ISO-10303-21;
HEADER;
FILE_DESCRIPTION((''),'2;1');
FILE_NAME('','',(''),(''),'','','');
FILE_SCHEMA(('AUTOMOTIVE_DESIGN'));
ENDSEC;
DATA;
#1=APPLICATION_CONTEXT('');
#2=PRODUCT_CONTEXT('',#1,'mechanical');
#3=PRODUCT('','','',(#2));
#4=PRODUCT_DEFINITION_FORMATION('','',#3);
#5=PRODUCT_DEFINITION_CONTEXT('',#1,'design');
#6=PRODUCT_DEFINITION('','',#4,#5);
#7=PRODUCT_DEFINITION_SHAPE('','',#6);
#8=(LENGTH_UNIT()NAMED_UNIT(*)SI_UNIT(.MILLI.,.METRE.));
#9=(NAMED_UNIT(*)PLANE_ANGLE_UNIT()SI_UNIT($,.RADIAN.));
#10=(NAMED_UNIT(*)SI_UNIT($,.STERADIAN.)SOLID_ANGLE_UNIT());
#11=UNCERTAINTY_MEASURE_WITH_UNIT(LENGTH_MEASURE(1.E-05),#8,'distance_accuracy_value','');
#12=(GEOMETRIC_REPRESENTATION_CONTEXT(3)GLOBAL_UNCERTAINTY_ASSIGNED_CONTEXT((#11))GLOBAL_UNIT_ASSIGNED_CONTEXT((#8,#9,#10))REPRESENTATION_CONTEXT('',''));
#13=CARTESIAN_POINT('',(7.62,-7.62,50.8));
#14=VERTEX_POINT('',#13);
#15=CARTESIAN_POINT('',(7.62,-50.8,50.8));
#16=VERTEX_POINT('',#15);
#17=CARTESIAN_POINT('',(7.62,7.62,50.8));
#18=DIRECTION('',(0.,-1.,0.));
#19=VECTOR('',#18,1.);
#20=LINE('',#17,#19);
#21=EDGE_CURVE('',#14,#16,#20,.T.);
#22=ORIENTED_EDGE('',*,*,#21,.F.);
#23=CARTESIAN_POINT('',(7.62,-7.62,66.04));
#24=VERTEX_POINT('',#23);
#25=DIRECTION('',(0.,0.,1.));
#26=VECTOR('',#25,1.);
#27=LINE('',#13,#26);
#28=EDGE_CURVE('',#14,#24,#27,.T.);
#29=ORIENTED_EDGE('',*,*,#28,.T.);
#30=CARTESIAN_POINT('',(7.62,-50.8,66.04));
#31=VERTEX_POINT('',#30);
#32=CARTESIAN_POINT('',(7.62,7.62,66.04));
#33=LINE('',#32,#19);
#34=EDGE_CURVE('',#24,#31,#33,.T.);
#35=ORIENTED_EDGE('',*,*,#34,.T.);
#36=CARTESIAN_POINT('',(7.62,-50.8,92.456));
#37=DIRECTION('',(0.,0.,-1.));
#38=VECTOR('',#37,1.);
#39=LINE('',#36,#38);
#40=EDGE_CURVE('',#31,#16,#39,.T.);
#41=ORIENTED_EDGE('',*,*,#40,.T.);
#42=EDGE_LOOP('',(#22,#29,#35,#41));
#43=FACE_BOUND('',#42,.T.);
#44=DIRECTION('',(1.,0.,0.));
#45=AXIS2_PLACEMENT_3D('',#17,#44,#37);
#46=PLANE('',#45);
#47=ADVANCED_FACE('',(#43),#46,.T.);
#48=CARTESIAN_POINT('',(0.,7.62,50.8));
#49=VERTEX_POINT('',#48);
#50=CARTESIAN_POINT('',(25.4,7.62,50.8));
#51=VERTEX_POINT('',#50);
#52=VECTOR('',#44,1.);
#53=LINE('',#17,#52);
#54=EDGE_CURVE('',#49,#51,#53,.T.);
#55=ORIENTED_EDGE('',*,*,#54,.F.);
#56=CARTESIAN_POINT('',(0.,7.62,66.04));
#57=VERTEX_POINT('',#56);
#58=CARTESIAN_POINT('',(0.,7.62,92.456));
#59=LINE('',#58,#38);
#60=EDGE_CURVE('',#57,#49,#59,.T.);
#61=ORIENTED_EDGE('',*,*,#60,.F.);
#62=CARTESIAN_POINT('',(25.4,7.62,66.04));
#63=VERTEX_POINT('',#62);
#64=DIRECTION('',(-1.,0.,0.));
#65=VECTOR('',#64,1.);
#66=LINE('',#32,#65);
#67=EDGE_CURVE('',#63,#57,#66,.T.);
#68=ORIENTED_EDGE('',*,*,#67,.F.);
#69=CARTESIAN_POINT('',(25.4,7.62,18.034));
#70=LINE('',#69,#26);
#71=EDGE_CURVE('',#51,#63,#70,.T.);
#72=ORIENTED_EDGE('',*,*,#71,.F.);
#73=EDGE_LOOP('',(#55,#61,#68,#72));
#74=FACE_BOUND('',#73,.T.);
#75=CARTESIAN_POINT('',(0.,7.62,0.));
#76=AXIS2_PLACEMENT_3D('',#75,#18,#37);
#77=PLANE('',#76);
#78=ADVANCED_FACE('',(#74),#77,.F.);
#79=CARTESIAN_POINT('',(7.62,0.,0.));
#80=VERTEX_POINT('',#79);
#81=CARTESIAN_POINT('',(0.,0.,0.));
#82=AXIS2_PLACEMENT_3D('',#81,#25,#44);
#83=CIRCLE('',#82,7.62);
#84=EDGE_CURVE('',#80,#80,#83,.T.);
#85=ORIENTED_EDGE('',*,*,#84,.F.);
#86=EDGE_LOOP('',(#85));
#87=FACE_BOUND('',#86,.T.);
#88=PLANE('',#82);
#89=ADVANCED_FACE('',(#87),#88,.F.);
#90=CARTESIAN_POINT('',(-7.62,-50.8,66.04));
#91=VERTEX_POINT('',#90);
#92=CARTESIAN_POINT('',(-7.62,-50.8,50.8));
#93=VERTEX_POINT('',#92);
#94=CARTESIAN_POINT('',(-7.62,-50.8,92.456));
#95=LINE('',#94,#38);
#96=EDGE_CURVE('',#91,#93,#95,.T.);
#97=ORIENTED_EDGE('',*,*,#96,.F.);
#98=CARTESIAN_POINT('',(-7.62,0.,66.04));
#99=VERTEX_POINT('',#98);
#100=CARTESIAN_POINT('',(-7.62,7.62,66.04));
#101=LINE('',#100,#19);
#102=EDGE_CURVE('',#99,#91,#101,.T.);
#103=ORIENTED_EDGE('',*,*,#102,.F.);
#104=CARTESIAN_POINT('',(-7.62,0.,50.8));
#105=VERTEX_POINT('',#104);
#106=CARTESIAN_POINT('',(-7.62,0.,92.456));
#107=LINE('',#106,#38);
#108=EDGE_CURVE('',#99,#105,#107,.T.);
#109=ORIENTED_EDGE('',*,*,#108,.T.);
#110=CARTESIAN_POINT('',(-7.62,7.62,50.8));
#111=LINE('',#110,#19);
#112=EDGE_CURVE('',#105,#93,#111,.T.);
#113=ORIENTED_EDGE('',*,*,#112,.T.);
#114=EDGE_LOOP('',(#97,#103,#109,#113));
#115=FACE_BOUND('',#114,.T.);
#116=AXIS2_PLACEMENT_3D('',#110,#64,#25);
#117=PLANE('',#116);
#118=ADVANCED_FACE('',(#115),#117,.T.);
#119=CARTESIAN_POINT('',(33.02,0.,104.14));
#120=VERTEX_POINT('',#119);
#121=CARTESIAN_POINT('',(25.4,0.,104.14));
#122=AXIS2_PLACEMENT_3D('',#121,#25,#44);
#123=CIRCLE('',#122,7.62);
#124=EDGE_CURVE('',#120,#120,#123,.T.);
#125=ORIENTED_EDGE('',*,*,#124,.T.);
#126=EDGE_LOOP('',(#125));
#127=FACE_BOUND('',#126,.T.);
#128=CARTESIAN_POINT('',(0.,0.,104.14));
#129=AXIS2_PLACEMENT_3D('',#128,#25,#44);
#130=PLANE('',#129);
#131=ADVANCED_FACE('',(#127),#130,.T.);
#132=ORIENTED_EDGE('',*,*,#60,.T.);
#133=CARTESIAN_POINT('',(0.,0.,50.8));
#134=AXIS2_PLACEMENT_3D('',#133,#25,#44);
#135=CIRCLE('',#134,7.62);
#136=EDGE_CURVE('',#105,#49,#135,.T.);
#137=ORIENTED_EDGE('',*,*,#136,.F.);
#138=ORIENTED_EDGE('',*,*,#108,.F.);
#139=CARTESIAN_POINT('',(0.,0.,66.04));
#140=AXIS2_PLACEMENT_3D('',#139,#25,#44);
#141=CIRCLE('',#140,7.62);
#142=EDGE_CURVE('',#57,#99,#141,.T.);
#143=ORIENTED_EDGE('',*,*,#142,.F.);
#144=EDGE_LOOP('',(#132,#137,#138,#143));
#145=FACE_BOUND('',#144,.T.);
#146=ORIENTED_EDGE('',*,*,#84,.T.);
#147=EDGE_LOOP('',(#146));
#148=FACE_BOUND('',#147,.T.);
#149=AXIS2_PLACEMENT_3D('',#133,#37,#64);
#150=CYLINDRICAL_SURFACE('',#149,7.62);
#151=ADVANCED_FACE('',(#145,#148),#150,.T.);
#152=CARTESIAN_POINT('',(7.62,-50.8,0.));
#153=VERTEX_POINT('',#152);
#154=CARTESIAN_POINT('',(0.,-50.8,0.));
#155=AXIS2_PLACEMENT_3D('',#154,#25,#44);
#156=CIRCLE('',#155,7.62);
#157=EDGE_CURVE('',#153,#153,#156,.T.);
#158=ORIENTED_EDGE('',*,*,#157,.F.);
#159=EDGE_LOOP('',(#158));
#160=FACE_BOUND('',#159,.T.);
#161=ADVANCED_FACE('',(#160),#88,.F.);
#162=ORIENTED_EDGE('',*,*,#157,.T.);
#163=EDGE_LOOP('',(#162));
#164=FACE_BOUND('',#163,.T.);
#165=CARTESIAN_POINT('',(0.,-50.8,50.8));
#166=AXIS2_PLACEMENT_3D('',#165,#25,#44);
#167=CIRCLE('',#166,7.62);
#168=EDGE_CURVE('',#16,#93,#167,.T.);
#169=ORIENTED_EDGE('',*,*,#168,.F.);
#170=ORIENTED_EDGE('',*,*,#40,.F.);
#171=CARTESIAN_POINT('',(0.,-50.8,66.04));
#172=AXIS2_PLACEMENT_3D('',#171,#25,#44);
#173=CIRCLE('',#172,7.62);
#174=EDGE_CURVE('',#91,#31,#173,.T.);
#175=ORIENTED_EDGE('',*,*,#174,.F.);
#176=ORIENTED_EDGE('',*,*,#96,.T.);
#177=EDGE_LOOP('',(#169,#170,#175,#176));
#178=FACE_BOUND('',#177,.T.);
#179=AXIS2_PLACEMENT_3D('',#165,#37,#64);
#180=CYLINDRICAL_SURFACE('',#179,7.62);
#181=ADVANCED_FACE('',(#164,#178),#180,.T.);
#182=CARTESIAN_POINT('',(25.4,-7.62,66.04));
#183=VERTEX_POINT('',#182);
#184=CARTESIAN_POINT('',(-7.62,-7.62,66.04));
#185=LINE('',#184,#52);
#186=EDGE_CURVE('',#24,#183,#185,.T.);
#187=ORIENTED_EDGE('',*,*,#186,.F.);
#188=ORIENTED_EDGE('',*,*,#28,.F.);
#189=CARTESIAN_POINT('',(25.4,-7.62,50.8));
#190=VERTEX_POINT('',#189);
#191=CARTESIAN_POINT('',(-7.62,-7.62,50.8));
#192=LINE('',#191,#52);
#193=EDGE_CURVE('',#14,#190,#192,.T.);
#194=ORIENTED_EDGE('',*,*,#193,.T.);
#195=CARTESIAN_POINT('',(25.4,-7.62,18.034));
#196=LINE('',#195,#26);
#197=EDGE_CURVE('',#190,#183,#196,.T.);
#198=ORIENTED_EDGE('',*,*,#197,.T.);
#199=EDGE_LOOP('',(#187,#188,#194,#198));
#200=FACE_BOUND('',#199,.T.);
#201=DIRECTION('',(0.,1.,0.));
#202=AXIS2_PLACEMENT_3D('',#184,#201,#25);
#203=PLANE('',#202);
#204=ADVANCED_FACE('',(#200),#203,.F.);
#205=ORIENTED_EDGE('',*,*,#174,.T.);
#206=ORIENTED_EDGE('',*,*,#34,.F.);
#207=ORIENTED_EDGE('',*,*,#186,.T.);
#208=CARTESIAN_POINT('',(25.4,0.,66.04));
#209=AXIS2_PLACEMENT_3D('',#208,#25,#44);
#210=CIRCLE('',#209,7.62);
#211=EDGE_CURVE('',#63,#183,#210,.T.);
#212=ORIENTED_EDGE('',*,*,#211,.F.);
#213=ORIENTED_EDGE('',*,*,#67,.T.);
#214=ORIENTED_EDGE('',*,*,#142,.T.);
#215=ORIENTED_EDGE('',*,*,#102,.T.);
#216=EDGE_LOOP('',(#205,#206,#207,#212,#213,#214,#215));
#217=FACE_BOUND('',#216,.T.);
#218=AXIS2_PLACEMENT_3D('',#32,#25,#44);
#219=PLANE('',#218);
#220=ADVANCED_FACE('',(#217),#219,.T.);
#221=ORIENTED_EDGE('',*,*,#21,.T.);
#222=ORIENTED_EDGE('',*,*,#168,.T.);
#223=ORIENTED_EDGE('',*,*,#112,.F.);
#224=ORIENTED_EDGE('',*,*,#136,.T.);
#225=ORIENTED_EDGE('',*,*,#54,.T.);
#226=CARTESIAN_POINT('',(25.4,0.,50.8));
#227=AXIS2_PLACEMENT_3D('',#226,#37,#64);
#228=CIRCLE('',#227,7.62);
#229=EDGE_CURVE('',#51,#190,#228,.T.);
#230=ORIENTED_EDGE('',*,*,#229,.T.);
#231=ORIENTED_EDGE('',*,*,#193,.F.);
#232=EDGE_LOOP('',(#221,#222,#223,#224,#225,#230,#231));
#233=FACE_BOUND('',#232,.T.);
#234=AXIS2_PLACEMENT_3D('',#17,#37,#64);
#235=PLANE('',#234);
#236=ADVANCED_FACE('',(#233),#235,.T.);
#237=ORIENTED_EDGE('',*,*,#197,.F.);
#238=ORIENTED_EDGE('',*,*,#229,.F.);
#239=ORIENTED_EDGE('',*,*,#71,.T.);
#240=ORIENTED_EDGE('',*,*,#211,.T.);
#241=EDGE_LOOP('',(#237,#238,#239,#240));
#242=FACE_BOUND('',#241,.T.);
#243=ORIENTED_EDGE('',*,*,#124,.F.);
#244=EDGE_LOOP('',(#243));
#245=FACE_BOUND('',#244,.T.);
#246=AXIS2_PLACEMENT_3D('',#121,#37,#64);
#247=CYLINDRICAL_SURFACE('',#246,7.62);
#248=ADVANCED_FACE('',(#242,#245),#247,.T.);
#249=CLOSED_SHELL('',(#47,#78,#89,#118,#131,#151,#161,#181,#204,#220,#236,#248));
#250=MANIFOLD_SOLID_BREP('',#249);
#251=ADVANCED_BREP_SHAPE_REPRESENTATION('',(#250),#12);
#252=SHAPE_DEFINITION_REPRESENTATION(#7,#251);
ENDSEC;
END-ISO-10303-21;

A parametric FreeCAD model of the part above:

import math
import FreeCAD as App
import Part
import Sketcher

V = App.Vector
Q = App.Units.Quantity

doc = App.newDocument("Part")
body = doc.addObject("PartDesign::Body", "Body")

sketch1 = doc.addObject("Sketcher::SketchObject", "Sketch")
body.addObject(sketch1)
sketch1.AttachmentSupport = (doc.XY_Plane, [""])
sketch1.MapMode = "FlatFace"
sketch1.addGeometry(Part.Circle(V(0, 0, 0), V(0, 0, 1), 7.62), False)
sketch1.addConstraint(Sketcher.Constraint("Coincident", 0, 3, -1, 1))
sketch1.addConstraint(Sketcher.Constraint("Diameter", 0, Q("0.6 in")))
pad1 = doc.addObject("PartDesign::Pad", "Pad")
body.addObject(pad1)
pad1.Profile = sketch1
pad1.Length = Q("2 in")

sketch2 = doc.addObject("Sketcher::SketchObject", "Sketch001")
body.addObject(sketch2)
sketch2.AttachmentSupport = (doc.XY_Plane, [""])
sketch2.MapMode = "FlatFace"
sketch2.AttachmentOffset = App.Placement(V(0, 0, 2 * 25.4), App.Rotation())
sketch2.addGeometry(Part.LineSegment(V(-7.62, 7.62, 0), V(-7.62, -7.62, 0)), False)
sketch2.addGeometry(Part.LineSegment(V(-7.62, -7.62, 0), V(7.62, -7.62, 0)), False)
sketch2.addGeometry(Part.LineSegment(V(7.62, -7.62, 0), V(7.62, 7.62, 0)), False)
sketch2.addGeometry(Part.LineSegment(V(7.62, 7.62, 0), V(-7.62, 7.62, 0)), False)
sketch2.addConstraint(Sketcher.Constraint("Coincident", 0, 2, 1, 1))
sketch2.addConstraint(Sketcher.Constraint("Coincident", 1, 2, 2, 1))
sketch2.addConstraint(Sketcher.Constraint("Coincident", 2, 2, 3, 1))
sketch2.addConstraint(Sketcher.Constraint("Coincident", 3, 2, 0, 1))
sketch2.addConstraint(Sketcher.Constraint("Vertical", 0))
sketch2.addConstraint(Sketcher.Constraint("Horizontal", 1))
sketch2.addConstraint(Sketcher.Constraint("Vertical", 2))
sketch2.addConstraint(Sketcher.Constraint("Horizontal", 3))
sketch2.addConstraint(Sketcher.Constraint("Symmetric", 0, 2, 2, 2, -1, 1))
sketch2.addConstraint(Sketcher.Constraint("Equal", 3, 0))
sketch2.addConstraint(Sketcher.Constraint("DistanceX", 1, 1, 1, 2, Q("0.6 in")))
pad2 = doc.addObject("PartDesign::Pad", "Pad001")
body.addObject(pad2)
pad2.Profile = sketch2
pad2.Length = Q("0.6 in")

sketch3 = doc.addObject("Sketcher::SketchObject", "Sketch002")
body.addObject(sketch3)
sketch3.AttachmentSupport = (doc.YZ_Plane, [""])
sketch3.MapMode = "FlatFace"
sketch3.AttachmentOffset = App.Placement(V(0, 0, 0.3 * 25.4), App.Rotation())
sketch3.addGeometry(Part.LineSegment(V(7.62, 66.04, 0), V(-7.62, 66.04, 0)), False)
sketch3.addGeometry(Part.LineSegment(V(-7.62, 66.04, 0), V(-7.62, 50.8, 0)), False)
sketch3.addGeometry(Part.LineSegment(V(-7.62, 50.8, 0), V(7.62, 50.8, 0)), False)
sketch3.addGeometry(Part.LineSegment(V(7.62, 50.8, 0), V(7.62, 66.04, 0)), False)
sketch3.addConstraint(Sketcher.Constraint("Coincident", 0, 2, 1, 1))
sketch3.addConstraint(Sketcher.Constraint("Coincident", 1, 2, 2, 1))
sketch3.addConstraint(Sketcher.Constraint("Coincident", 2, 2, 3, 1))
sketch3.addConstraint(Sketcher.Constraint("Coincident", 3, 2, 0, 1))
sketch3.addConstraint(Sketcher.Constraint("Horizontal", 0))
sketch3.addConstraint(Sketcher.Constraint("Vertical", 1))
sketch3.addConstraint(Sketcher.Constraint("Horizontal", 2))
sketch3.addConstraint(Sketcher.Constraint("Vertical", 3))
sketch3.addConstraint(Sketcher.Constraint("Equal", 2, 1))
sketch3.addConstraint(Sketcher.Constraint("DistanceX", 0, 2, 0, 1, Q("0.6 in")))
sketch3.addConstraint(Sketcher.Constraint("DistanceY", -1, 1, 1, 2, Q("2 in")))
sketch3.addConstraint(Sketcher.Constraint("DistanceX", 0, 2, -1, 1, Q("0.3 in")))
pad3 = doc.addObject("PartDesign::Pad", "Pad002")
body.addObject(pad3)
pad3.Profile = sketch3
pad3.Length = Q("1 in")

sketch4 = doc.addObject("Sketcher::SketchObject", "Sketch003")
body.addObject(sketch4)
sketch4.AttachmentSupport = (doc.XY_Plane, [""])
sketch4.MapMode = "FlatFace"
sketch4.AttachmentOffset = App.Placement(V(0, 0, 2.6 * 25.4), App.Rotation())
sketch4.addGeometry(Part.Circle(V(25.4, 0, 0), V(0, 0, 1), 7.62), False)
sketch4.addConstraint(Sketcher.Constraint("PointOnObject", 0, 3, -1))
sketch4.addConstraint(Sketcher.Constraint("Diameter", 0, Q("0.6 in")))
sketch4.addConstraint(Sketcher.Constraint("DistanceX", -1, 1, 0, 3, Q("1 in")))
pad4 = doc.addObject("PartDesign::Pad", "Pad003")
body.addObject(pad4)
pad4.Profile = sketch4
pad4.Length = Q("1.5 in")

sketch5 = doc.addObject("Sketcher::SketchObject", "Sketch004")
body.addObject(sketch5)
sketch5.AttachmentSupport = (doc.XY_Plane, [""])
sketch5.MapMode = "FlatFace"
sketch5.addGeometry(Part.LineSegment(V(-7.62, 0, 0), V(-7.62, 7.62, 0)), False)
sketch5.addGeometry(Part.LineSegment(V(-7.62, 7.62, 0), V(0, 7.62, 0)), False)
sketch5.addGeometry(Part.ArcOfCircle(Part.Circle(V(0, 0, 0), V(0, 0, 1), 7.62), math.radians(90), math.radians(180)), False)
sketch5.addGeometry(Part.LineSegment(V(-7.62, -7.62, 0), V(-7.62, 0, 0)), False)
sketch5.addGeometry(Part.ArcOfCircle(Part.Circle(V(0, 0, 0), V(0, 0, 1), 7.62), math.radians(180), math.radians(270)), False)
sketch5.addGeometry(Part.LineSegment(V(0, -7.62, 0), V(-7.62, -7.62, 0)), False)
sketch5.addConstraint(Sketcher.Constraint("Coincident", 0, 2, 1, 1))
sketch5.addConstraint(Sketcher.Constraint("Tangent", 1, 2, 2, 1))
sketch5.addConstraint(Sketcher.Constraint("Tangent", 2, 2, 0, 1))
sketch5.addConstraint(Sketcher.Constraint("Tangent", 3, 2, 4, 1))
sketch5.addConstraint(Sketcher.Constraint("Tangent", 4, 2, 5, 1))
sketch5.addConstraint(Sketcher.Constraint("Coincident", 5, 2, 3, 1))
sketch5.addConstraint(Sketcher.Constraint("Vertical", 0))
sketch5.addConstraint(Sketcher.Constraint("Horizontal", 1))
sketch5.addConstraint(Sketcher.Constraint("Vertical", 3))
sketch5.addConstraint(Sketcher.Constraint("Horizontal", 5))
sketch5.addConstraint(Sketcher.Constraint("Coincident", 2, 3, -1, 1))
sketch5.addConstraint(Sketcher.Constraint("Coincident", 4, 3, -1, 1))
sketch5.addConstraint(Sketcher.Constraint("Equal", 2, 4))
sketch5.addConstraint(Sketcher.Constraint("Radius", 2, Q("0.3 in")))
pocket1 = doc.addObject("PartDesign::Pocket", "Pocket")
body.addObject(pocket1)
pocket1.Profile = sketch5
pocket1.Length = Q("3.39 in")
pocket1.Reversed = True

sketch6 = doc.addObject("Sketcher::SketchObject", "Sketch005")
body.addObject(sketch6)
sketch6.AttachmentSupport = (doc.XY_Plane, [""])
sketch6.MapMode = "FlatFace"
sketch6.AttachmentOffset = App.Placement(V(0, 0, 0.71 * 25.4), App.Rotation())
sketch6.addGeometry(Part.LineSegment(V(33.02, 0, 0), V(33.02, 7.62, 0)), False)
sketch6.addGeometry(Part.LineSegment(V(33.02, 7.62, 0), V(25.4, 7.62, 0)), False)
sketch6.addGeometry(Part.ArcOfCircle(Part.Circle(V(25.4, 0, 0), V(0, 0, 1), 7.62), math.radians(0), math.radians(90)), False)
sketch6.addGeometry(Part.LineSegment(V(33.02, -7.62, 0), V(33.02, 0, 0)), False)
sketch6.addGeometry(Part.ArcOfCircle(Part.Circle(V(25.4, 0, 0), V(0, 0, 1), 7.62), math.radians(-90), math.radians(0)), False)
sketch6.addGeometry(Part.LineSegment(V(25.4, -7.62, 0), V(33.02, -7.62, 0)), False)
sketch6.addConstraint(Sketcher.Constraint("Coincident", 0, 2, 1, 1))
sketch6.addConstraint(Sketcher.Constraint("Tangent", 1, 2, 2, 2))
sketch6.addConstraint(Sketcher.Constraint("Tangent", 2, 1, 0, 1))
sketch6.addConstraint(Sketcher.Constraint("Tangent", 3, 2, 4, 2))
sketch6.addConstraint(Sketcher.Constraint("Tangent", 4, 1, 5, 1))
sketch6.addConstraint(Sketcher.Constraint("Coincident", 5, 2, 3, 1))
sketch6.addConstraint(Sketcher.Constraint("Vertical", 0))
sketch6.addConstraint(Sketcher.Constraint("Horizontal", 1))
sketch6.addConstraint(Sketcher.Constraint("Vertical", 3))
sketch6.addConstraint(Sketcher.Constraint("Horizontal", 5))
sketch6.addConstraint(Sketcher.Constraint("Coincident", 4, 3, 2, 3))
sketch6.addConstraint(Sketcher.Constraint("Equal", 2, 4))
sketch6.addConstraint(Sketcher.Constraint("PointOnObject", 2, 3, -1))
sketch6.addConstraint(Sketcher.Constraint("Radius", 2, Q("0.3 in")))
sketch6.addConstraint(Sketcher.Constraint("DistanceX", -1, 1, 2, 3, Q("1 in")))
pocket2 = doc.addObject("PartDesign::Pocket", "Pocket001")
body.addObject(pocket2)
pocket2.Profile = sketch6
pocket2.Length = Q("3.39 in")
pocket2.Reversed = True
body2 = doc.addObject("PartDesign::Body", "Body001")

sketch7 = doc.addObject("Sketcher::SketchObject", "Sketch006")
body2.addObject(sketch7)
sketch7.AttachmentSupport = (doc.getObject("XY_Plane001"), [""])
sketch7.MapMode = "FlatFace"
sketch7.addGeometry(Part.Circle(V(0, -50.8, 0), V(0, 0, 1), 7.62), False)
sketch7.addConstraint(Sketcher.Constraint("PointOnObject", 0, 3, -2))
sketch7.addConstraint(Sketcher.Constraint("Diameter", 0, Q("0.6 in")))
sketch7.addConstraint(Sketcher.Constraint("DistanceY", 0, 3, -1, 1, Q("2 in")))
pad5 = doc.addObject("PartDesign::Pad", "Pad004")
body2.addObject(pad5)
pad5.Profile = sketch7
pad5.Length = Q("2 in")
body.AllowCompound = True
doc.recompute()

boolean = doc.addObject("PartDesign::Boolean", "Boolean")
body.addObject(boolean)
boolean.Type = "Fuse"
boolean.addObjects([body2])

sketch8 = doc.addObject("Sketcher::SketchObject", "Sketch007")
body.addObject(sketch8)
sketch8.AttachmentSupport = (doc.XZ_Plane, [""])
sketch8.MapMode = "FlatFace"
sketch8.AttachmentOffset = App.Placement(V(0, 0, 0.3 * 25.4), App.Rotation())
sketch8.addGeometry(Part.LineSegment(V(-7.62, 66.04, 0), V(-7.62, 50.8, 0)), False)
sketch8.addGeometry(Part.LineSegment(V(-7.62, 50.8, 0), V(7.62, 50.8, 0)), False)
sketch8.addGeometry(Part.LineSegment(V(7.62, 50.8, 0), V(7.62, 66.04, 0)), False)
sketch8.addGeometry(Part.LineSegment(V(7.62, 66.04, 0), V(-7.62, 66.04, 0)), False)
sketch8.addConstraint(Sketcher.Constraint("Coincident", 0, 2, 1, 1))
sketch8.addConstraint(Sketcher.Constraint("Coincident", 1, 2, 2, 1))
sketch8.addConstraint(Sketcher.Constraint("Coincident", 2, 2, 3, 1))
sketch8.addConstraint(Sketcher.Constraint("Coincident", 3, 2, 0, 1))
sketch8.addConstraint(Sketcher.Constraint("Vertical", 0))
sketch8.addConstraint(Sketcher.Constraint("Horizontal", 1))
sketch8.addConstraint(Sketcher.Constraint("Vertical", 2))
sketch8.addConstraint(Sketcher.Constraint("Horizontal", 3))
sketch8.addConstraint(Sketcher.Constraint("Equal", 3, 0))
sketch8.addConstraint(Sketcher.Constraint("DistanceX", 1, 1, 1, 2, Q("0.6 in")))
sketch8.addConstraint(Sketcher.Constraint("DistanceY", -1, 1, 0, 2, Q("2 in")))
sketch8.addConstraint(Sketcher.Constraint("DistanceX", 0, 2, -1, 1, Q("0.3 in")))
pad6 = doc.addObject("PartDesign::Pad", "Pad005")
body.addObject(pad6)
pad6.Profile = sketch8
pad6.Type = "TwoLengths"
pad6.Length = Q("2 in")
pad6.Length2 = Q("0.6 in")

sketch9 = doc.addObject("Sketcher::SketchObject", "Sketch008")
body.addObject(sketch9)
sketch9.AttachmentSupport = (doc.XY_Plane, [""])
sketch9.MapMode = "FlatFace"
sketch9.addGeometry(Part.LineSegment(V(-7.62, 0, 0), V(-7.62, 7.62, 0)), False)
sketch9.addGeometry(Part.LineSegment(V(-7.62, 7.62, 0), V(0, 7.62, 0)), False)
sketch9.addGeometry(Part.ArcOfCircle(Part.Circle(V(0, 0, 0), V(0, 0, 1), 7.62), math.radians(90), math.radians(180)), False)
sketch9.addGeometry(Part.LineSegment(V(0, -58.42, 0), V(-7.62, -58.42, 0)), False)
sketch9.addGeometry(Part.LineSegment(V(-7.62, -58.42, 0), V(-7.62, -50.8, 0)), False)
sketch9.addGeometry(Part.ArcOfCircle(Part.Circle(V(0, -50.8, 0), V(0, 0, 1), 7.62), math.radians(180), math.radians(270)), False)
sketch9.addGeometry(Part.LineSegment(V(7.62, -58.42, 0), V(0, -58.42, 0)), False)
sketch9.addGeometry(Part.ArcOfCircle(Part.Circle(V(0, -50.8, 0), V(0, 0, 1), 7.62), math.radians(-90), math.radians(0)), False)
sketch9.addGeometry(Part.LineSegment(V(7.62, -50.8, 0), V(7.62, -58.42, 0)), False)
sketch9.addConstraint(Sketcher.Constraint("Coincident", 0, 2, 1, 1))
sketch9.addConstraint(Sketcher.Constraint("Tangent", 1, 2, 2, 1))
sketch9.addConstraint(Sketcher.Constraint("Tangent", 2, 2, 0, 1))
sketch9.addConstraint(Sketcher.Constraint("Coincident", 3, 2, 4, 1))
sketch9.addConstraint(Sketcher.Constraint("Tangent", 4, 2, 5, 1))
sketch9.addConstraint(Sketcher.Constraint("Tangent", 5, 2, 3, 1))
sketch9.addConstraint(Sketcher.Constraint("Tangent", 6, 2, 7, 1))
sketch9.addConstraint(Sketcher.Constraint("Tangent", 7, 2, 8, 1))
sketch9.addConstraint(Sketcher.Constraint("Coincident", 8, 2, 6, 1))
sketch9.addConstraint(Sketcher.Constraint("Vertical", 0))
sketch9.addConstraint(Sketcher.Constraint("Horizontal", 1))
sketch9.addConstraint(Sketcher.Constraint("Horizontal", 3))
sketch9.addConstraint(Sketcher.Constraint("Vertical", 4))
sketch9.addConstraint(Sketcher.Constraint("Horizontal", 6))
sketch9.addConstraint(Sketcher.Constraint("Vertical", 8))
sketch9.addConstraint(Sketcher.Constraint("Coincident", 2, 3, -1, 1))
sketch9.addConstraint(Sketcher.Constraint("Coincident", 7, 3, 5, 3))
sketch9.addConstraint(Sketcher.Constraint("Equal", 2, 5))
sketch9.addConstraint(Sketcher.Constraint("Equal", 5, 7))
sketch9.addConstraint(Sketcher.Constraint("PointOnObject", 5, 3, -2))
sketch9.addConstraint(Sketcher.Constraint("Radius", 2, Q("0.3 in")))
sketch9.addConstraint(Sketcher.Constraint("DistanceY", 5, 3, -1, 1, Q("2 in")))
pocket3 = doc.addObject("PartDesign::Pocket", "Pocket002")
body.addObject(pocket3)
pocket3.Profile = sketch9
pocket3.Length = Q("3.64 in")
pocket3.Reversed = True

doc.recompute()
